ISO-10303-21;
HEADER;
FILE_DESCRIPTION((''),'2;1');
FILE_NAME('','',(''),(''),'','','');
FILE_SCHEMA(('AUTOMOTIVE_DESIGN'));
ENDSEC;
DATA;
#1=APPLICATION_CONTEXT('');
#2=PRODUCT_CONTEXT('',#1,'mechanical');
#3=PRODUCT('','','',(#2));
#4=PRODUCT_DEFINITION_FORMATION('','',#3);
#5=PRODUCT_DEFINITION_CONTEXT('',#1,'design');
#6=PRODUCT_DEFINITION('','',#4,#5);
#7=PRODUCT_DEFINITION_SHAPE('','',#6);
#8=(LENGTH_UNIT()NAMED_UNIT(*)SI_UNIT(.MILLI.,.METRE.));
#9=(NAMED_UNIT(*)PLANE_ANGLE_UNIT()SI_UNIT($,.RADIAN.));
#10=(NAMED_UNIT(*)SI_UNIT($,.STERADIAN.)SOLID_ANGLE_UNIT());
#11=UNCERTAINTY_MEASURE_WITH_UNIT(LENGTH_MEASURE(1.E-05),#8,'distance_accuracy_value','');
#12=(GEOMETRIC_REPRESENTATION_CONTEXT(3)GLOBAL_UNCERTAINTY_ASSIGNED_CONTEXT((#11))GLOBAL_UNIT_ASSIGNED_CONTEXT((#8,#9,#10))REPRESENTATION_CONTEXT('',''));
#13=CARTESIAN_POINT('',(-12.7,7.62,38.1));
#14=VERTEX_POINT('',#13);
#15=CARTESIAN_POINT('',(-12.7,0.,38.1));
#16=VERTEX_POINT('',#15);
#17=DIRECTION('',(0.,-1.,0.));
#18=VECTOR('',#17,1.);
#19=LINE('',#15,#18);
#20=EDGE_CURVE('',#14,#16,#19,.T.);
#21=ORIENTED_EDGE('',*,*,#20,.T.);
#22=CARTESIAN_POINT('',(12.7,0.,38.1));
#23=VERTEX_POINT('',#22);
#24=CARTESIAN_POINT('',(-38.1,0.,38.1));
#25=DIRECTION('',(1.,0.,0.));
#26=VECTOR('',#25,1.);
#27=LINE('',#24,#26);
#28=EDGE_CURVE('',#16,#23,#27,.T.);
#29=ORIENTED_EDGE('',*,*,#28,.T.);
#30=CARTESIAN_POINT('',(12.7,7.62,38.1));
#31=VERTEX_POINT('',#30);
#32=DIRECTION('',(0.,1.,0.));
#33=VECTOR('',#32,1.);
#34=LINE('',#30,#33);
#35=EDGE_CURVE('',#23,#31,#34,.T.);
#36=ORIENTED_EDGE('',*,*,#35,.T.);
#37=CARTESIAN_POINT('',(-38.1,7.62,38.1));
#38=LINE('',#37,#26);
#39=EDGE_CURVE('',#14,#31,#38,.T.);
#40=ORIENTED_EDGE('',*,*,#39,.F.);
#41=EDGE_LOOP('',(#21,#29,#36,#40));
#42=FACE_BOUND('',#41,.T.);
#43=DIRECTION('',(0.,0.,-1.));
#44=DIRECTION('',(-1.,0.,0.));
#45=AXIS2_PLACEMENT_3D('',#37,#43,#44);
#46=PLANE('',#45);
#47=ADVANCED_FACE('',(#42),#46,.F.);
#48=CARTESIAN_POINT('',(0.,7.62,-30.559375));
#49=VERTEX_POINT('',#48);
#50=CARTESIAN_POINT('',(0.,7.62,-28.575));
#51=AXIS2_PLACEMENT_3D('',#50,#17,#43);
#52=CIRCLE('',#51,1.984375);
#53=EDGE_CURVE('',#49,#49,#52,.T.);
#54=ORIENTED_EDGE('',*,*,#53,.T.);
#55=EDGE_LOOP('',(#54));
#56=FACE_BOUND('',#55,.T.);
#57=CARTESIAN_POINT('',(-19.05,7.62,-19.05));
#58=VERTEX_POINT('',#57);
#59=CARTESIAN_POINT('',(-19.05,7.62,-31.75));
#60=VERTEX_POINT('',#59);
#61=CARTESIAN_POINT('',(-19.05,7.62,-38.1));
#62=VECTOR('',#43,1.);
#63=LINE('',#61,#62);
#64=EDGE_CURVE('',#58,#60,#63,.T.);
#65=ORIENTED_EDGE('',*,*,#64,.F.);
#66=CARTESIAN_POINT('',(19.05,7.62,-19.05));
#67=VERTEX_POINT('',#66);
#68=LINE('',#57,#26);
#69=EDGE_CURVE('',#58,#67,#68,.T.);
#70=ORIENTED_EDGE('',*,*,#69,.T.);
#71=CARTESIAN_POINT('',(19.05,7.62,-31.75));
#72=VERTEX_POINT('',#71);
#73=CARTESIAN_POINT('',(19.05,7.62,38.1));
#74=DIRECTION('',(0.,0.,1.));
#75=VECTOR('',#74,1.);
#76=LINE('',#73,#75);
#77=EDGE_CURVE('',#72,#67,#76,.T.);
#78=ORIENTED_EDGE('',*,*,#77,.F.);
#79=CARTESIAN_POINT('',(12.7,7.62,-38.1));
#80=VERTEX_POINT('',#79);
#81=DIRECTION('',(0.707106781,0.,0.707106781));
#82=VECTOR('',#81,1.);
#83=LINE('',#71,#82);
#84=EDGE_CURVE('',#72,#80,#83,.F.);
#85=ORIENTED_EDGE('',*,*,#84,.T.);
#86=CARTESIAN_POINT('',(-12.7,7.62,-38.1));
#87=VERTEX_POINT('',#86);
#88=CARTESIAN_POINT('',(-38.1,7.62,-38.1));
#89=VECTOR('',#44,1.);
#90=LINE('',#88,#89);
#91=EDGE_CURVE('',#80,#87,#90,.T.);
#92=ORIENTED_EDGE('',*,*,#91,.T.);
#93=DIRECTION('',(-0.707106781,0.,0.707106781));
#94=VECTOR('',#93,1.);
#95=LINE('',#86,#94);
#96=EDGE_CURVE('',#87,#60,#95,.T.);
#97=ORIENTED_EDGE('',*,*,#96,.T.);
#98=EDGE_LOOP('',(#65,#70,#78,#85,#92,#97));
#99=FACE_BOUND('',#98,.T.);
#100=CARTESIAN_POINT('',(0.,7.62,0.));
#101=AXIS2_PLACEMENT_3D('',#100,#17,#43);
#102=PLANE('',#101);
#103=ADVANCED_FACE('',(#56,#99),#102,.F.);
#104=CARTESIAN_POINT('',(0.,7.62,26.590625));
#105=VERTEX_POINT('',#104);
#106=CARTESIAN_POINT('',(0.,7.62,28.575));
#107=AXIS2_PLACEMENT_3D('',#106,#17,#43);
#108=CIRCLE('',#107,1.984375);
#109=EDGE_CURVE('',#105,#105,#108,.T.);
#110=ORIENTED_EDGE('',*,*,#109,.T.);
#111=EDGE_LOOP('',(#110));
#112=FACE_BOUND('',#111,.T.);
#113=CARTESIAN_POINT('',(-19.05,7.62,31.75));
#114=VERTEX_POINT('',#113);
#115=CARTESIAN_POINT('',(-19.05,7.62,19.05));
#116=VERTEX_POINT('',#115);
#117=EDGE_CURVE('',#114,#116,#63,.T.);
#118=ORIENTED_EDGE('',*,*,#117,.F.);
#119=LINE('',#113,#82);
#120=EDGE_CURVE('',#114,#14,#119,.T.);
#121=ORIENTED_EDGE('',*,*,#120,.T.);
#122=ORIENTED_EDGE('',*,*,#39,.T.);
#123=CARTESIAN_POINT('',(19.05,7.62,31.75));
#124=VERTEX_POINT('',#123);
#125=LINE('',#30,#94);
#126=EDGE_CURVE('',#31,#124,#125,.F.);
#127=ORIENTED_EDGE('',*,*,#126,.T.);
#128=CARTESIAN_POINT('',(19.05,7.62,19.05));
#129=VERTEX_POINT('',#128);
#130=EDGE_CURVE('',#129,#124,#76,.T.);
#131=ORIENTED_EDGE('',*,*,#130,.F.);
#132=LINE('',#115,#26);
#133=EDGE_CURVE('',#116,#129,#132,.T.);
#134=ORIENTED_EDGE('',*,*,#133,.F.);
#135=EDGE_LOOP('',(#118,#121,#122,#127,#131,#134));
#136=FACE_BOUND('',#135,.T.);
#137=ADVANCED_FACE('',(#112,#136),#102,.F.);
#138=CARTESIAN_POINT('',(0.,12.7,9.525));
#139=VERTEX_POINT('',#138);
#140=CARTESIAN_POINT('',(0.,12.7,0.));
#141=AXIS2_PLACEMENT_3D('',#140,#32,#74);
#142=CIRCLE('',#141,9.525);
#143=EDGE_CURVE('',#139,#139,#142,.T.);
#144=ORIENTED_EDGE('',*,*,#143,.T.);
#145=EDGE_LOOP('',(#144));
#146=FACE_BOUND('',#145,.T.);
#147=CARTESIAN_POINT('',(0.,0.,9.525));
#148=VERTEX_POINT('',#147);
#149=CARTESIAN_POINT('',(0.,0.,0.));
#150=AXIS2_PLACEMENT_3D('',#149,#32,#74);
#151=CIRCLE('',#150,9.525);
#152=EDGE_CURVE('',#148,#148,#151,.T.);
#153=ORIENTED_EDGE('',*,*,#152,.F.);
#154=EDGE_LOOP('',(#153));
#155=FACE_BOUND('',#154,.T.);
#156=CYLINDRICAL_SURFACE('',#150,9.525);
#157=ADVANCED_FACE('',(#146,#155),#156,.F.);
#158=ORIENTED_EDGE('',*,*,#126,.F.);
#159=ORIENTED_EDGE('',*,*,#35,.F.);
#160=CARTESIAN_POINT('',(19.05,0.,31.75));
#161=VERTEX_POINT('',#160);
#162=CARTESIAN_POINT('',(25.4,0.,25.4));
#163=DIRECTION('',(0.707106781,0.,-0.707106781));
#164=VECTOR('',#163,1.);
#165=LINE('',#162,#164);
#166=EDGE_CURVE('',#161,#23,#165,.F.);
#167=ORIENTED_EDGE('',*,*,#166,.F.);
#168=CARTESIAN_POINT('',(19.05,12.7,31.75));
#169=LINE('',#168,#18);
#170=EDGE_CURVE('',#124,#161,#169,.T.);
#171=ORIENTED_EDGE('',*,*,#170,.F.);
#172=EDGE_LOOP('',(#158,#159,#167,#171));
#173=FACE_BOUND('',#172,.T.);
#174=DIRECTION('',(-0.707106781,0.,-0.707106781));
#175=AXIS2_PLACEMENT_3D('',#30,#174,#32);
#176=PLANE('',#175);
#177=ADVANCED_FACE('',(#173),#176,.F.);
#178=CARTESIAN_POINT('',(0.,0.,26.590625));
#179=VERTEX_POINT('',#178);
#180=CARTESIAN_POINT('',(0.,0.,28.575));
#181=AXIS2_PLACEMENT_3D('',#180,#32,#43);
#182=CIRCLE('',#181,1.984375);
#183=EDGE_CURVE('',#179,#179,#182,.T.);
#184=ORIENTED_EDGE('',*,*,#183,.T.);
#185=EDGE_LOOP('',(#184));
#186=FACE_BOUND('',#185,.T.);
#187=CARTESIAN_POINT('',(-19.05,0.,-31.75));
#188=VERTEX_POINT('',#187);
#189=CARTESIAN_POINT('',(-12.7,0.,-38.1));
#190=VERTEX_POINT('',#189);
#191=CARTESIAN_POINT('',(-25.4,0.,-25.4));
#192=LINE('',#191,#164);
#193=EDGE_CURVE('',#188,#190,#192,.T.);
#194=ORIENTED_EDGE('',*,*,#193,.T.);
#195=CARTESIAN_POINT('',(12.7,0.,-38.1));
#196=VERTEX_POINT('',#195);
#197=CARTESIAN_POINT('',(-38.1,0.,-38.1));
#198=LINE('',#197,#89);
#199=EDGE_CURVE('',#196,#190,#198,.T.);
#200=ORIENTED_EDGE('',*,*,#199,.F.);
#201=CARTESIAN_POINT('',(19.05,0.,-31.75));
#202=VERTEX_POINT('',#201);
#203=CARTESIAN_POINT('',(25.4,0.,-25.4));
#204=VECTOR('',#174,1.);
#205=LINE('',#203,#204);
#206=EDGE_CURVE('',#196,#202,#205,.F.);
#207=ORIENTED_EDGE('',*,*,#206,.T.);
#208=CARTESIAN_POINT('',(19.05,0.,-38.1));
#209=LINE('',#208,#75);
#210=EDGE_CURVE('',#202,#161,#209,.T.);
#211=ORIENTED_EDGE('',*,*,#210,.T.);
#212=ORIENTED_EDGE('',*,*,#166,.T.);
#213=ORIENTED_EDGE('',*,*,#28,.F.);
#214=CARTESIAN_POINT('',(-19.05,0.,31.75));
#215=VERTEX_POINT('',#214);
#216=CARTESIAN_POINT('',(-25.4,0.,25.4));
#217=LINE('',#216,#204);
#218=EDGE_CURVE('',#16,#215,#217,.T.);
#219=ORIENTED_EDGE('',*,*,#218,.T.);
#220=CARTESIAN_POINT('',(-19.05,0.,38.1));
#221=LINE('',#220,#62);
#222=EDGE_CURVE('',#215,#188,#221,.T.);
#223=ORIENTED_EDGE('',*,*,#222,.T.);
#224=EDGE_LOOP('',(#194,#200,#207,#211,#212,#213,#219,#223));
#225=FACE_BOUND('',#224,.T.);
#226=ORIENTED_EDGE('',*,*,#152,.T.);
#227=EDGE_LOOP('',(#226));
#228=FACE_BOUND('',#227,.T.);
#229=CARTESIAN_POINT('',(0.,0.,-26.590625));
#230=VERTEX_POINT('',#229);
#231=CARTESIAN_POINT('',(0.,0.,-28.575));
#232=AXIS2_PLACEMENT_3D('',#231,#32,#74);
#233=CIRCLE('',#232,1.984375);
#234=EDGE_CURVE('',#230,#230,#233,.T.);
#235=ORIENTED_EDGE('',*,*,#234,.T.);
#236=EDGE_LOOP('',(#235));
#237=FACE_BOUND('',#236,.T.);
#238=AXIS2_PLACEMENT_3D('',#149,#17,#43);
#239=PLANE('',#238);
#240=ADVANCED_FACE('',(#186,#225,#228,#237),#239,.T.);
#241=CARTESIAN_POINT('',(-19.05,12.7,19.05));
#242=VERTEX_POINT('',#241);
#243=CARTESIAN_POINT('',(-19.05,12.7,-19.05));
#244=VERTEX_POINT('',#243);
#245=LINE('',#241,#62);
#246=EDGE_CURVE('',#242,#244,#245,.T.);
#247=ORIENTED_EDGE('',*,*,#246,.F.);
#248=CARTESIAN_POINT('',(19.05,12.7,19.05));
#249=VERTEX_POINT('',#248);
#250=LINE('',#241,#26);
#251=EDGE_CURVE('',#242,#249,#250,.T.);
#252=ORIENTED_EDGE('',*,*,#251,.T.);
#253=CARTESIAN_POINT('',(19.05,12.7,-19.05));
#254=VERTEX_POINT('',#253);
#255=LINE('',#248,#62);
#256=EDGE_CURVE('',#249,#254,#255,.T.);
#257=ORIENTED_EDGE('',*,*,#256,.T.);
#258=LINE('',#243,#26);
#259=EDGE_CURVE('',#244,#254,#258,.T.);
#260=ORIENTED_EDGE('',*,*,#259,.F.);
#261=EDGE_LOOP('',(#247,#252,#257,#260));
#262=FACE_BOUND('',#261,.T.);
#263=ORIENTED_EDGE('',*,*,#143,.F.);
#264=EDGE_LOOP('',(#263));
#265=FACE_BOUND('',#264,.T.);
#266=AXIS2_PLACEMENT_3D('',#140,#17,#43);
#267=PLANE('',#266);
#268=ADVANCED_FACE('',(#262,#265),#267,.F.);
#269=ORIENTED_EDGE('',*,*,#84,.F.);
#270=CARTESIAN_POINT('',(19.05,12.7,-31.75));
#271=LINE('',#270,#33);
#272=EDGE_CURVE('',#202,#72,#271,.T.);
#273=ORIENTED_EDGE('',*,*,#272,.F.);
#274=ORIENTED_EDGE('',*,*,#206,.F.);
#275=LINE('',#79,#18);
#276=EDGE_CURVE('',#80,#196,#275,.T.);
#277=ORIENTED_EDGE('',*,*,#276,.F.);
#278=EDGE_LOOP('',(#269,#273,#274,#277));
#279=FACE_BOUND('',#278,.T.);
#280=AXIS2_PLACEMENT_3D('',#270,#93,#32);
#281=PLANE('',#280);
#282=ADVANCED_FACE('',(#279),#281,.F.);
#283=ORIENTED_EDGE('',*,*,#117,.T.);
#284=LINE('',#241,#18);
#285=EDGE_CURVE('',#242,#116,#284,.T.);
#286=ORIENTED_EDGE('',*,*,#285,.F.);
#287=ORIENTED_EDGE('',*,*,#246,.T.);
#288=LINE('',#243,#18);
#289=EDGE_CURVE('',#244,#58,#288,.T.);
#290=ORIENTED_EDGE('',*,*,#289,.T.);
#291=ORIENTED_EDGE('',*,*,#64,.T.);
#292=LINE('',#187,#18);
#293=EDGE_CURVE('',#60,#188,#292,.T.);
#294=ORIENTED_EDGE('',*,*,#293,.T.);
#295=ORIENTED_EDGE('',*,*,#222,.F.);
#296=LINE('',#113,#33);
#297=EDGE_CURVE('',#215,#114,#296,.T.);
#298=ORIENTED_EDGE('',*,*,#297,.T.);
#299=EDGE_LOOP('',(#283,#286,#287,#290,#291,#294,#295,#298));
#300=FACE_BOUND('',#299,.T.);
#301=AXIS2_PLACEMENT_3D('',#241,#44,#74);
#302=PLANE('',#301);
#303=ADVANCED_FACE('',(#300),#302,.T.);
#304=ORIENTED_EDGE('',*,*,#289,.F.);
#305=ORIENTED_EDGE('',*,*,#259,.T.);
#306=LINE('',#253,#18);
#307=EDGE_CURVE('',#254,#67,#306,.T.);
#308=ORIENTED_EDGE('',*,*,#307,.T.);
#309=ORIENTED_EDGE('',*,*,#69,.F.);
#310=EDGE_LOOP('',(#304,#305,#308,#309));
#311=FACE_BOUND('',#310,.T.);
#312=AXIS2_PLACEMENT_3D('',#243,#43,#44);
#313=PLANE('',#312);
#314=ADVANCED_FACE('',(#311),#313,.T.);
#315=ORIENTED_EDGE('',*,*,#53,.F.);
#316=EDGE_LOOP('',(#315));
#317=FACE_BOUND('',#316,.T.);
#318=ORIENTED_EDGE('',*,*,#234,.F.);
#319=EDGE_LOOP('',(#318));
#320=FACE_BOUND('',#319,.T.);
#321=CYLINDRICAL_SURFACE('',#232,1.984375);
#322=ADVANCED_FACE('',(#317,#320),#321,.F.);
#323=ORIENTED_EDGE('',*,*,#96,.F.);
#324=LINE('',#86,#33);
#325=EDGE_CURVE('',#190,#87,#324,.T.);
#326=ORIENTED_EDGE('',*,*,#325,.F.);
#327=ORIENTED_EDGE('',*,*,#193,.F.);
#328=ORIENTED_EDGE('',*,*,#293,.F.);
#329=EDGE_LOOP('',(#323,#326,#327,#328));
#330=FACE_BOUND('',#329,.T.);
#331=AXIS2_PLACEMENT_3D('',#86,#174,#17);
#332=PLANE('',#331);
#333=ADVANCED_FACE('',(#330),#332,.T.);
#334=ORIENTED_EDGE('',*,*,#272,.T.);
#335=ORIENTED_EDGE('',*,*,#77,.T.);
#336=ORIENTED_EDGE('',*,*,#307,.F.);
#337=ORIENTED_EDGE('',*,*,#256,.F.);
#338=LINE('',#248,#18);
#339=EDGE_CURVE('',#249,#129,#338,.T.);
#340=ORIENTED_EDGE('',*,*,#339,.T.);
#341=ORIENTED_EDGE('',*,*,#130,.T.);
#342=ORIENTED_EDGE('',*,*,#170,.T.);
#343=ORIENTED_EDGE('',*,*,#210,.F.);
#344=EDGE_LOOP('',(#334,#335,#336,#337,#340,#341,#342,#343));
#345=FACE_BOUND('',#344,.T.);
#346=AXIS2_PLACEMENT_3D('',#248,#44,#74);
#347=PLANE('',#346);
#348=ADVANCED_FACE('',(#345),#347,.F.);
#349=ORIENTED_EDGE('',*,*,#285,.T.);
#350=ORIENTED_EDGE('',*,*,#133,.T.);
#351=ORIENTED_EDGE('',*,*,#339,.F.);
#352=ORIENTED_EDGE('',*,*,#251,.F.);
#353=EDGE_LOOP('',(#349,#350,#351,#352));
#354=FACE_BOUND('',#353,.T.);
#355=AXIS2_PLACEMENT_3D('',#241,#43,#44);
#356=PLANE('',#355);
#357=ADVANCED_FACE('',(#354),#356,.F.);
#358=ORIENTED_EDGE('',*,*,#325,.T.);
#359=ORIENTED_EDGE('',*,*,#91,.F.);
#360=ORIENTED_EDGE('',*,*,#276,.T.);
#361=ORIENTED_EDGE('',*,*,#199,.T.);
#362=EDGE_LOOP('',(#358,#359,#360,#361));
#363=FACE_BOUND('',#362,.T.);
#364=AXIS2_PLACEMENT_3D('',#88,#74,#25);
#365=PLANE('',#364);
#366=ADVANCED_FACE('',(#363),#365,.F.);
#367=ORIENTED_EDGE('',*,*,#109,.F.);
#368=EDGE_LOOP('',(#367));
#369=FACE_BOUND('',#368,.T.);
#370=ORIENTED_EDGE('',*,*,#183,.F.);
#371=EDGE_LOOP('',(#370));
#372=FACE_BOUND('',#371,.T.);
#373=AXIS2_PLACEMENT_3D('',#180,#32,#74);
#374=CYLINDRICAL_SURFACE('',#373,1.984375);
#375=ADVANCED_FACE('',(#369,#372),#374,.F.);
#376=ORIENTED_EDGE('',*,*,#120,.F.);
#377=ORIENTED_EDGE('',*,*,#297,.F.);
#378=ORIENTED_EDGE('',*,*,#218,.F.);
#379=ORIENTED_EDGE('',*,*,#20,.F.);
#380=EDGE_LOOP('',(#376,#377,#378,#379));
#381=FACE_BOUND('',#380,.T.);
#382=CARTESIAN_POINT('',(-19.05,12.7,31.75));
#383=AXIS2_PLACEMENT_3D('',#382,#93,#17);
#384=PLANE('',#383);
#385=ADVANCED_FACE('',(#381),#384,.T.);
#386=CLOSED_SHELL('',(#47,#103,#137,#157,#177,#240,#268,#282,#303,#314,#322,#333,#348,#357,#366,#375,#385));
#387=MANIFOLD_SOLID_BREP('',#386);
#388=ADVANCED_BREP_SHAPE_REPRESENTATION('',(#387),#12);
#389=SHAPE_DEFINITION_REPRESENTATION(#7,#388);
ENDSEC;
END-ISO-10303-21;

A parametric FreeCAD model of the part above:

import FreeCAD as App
import Part
import Sketcher
from FreeCAD import Vector
Q = App.Units.Quantity


def edges_at(feature, points):
    """Names of the edges that pass closest to the given points."""
    edges = feature.Shape.Edges
    near = lambda p: min(range(len(edges)), key=lambda i: edges[i].distToShape(Part.Vertex(*p))[0])
    return sorted({f"Edge{near(p) + 1}" for p in points})


def add_polygon(sketch, points):
    """Adds a closed chain of lines whose ends are joined by coincident constraints."""
    first, n = sketch.GeometryCount, len(points)
    for a, b in zip(points, points[1:] + points[:1]):
        sketch.addGeometry(Part.LineSegment(App.Vector(*a, 0), App.Vector(*b, 0)), False)
    for i in range(n):
        sketch.addConstraint(Sketcher.Constraint("Coincident", first + i, 2, first + (i + 1) % n, 1))

doc = App.newDocument("Part")
body = doc.addObject("PartDesign::Body", "Body")

# Sketch on XZ plane
sketch1 = doc.addObject("Sketcher::SketchObject", "Sketch")
body.addObject(sketch1)
sketch1.AttachmentSupport = (doc.XZ_Plane, [""])
sketch1.MapMode = "FlatFace"
add_polygon(sketch1, [(-38, -38), (-38, 38), (38, 38), (38, -38)])  # lines 0-3
sketch1.addConstraint(Sketcher.Constraint("Vertical", 0))
sketch1.addConstraint(Sketcher.Constraint("Horizontal", 1))
sketch1.addConstraint(Sketcher.Constraint("Vertical", 2))
sketch1.addConstraint(Sketcher.Constraint("Horizontal", 3))
sketch1.addConstraint(Sketcher.Constraint("Symmetric", 0, 2, 2, 2, -1, 1))
sketch1.addConstraint(Sketcher.Constraint("Equal", 3, 0))
sketch1.addConstraint(Sketcher.Constraint("DistanceX", 1, 1, 1, 2, Q("3 in")))
pad1 = doc.addObject("PartDesign::Pad", "Pad")
body.addObject(pad1)
pad1.Profile = sketch1
pad1.Length = Q("0.3 in")
pad1.Reversed = True

# Sketch on XZ plane
sketch2 = doc.addObject("Sketcher::SketchObject", "Sketch001")
body.addObject(sketch2)
sketch2.AttachmentSupport = (doc.XZ_Plane, [""])
sketch2.MapMode = "FlatFace"
sketch2.AttachmentOffset = App.Placement(Vector(0, 0, -0.3 * 25.4), App.Rotation())
add_polygon(sketch2, [(-19, -19), (-19, 19), (19, 19), (19, -19)])  # lines 0-3
sketch2.addConstraint(Sketcher.Constraint("Vertical", 0))
sketch2.addConstraint(Sketcher.Constraint("Horizontal", 1))
sketch2.addConstraint(Sketcher.Constraint("Vertical", 2))
sketch2.addConstraint(Sketcher.Constraint("Horizontal", 3))
sketch2.addConstraint(Sketcher.Constraint("Symmetric", 0, 2, 2, 2, -1, 1))
sketch2.addConstraint(Sketcher.Constraint("Equal", 3, 0))
sketch2.addConstraint(Sketcher.Constraint("DistanceX", 1, 1, 1, 2, Q("1.5 in")))
pad2 = doc.addObject("PartDesign::Pad", "Pad001")
body.addObject(pad2)
pad2.Profile = sketch2
pad2.Length = Q("0.2 in")
pad2.Reversed = True

# Sketch on XZ plane
sketch3 = doc.addObject("Sketcher::SketchObject", "Sketch002")
body.addObject(sketch3)
sketch3.AttachmentSupport = (doc.XZ_Plane, [""])
sketch3.MapMode = "FlatFace"
sketch3.AttachmentOffset = App.Placement(Vector(0, 0, -0.5 * 25.4), App.Rotation())
sketch3.addGeometry(Part.Circle(Vector(0, 0, 0), Vector(0, 0, 1), 10), False)
sketch3.addConstraint(Sketcher.Constraint("Coincident", 0, 3, -1, 1))
sketch3.addConstraint(Sketcher.Constraint("Diameter", 0, Q("0.75 in")))
pocket1 = doc.addObject("PartDesign::Pocket", "Pocket")
body.addObject(pocket1)
pocket1.Profile = sketch3
pocket1.Type = "ThroughAll"
pocket1.Reversed = True

# Sketch on XZ plane
sketch4 = doc.addObject("Sketcher::SketchObject", "Sketch003")
body.addObject(sketch4)
sketch4.AttachmentSupport = (doc.XZ_Plane, [""])
sketch4.MapMode = "FlatFace"
sketch4.AttachmentOffset = App.Placement(Vector(0, 0, -0.5 * 25.4), App.Rotation())
sketch4.addGeometry(Part.Circle(Vector(0, -28.6, 0), Vector(0, 0, 1), 2), False)
sketch4.addGeometry(Part.Circle(Vector(0, 28.6, 0), Vector(0, 0, 1), 2), False)
sketch4.addConstraint(Sketcher.Constraint("Equal", 0, 1))
sketch4.addConstraint(Sketcher.Constraint("Symmetric", 0, 3, 1, 3, -1, 1))
sketch4.addConstraint(Sketcher.Constraint("PointOnObject", 0, 3, -2))
sketch4.addConstraint(Sketcher.Constraint("Diameter", 0, Q("0.15625 in")))
sketch4.addConstraint(Sketcher.Constraint("DistanceY", 0, 3, 1, 3, Q("2.25 in")))
pocket2 = doc.addObject("PartDesign::Pocket", "Pocket001")
body.addObject(pocket2)
pocket2.Profile = sketch4
pocket2.Type = "ThroughAll"
pocket2.Reversed = True

# Sketch on XZ plane
sketch5 = doc.addObject("Sketcher::SketchObject", "Sketch004")
body.addObject(sketch5)
sketch5.AttachmentSupport = (doc.XZ_Plane, [""])
sketch5.MapMode = "FlatFace"
sketch5.AttachmentOffset = App.Placement(Vector(0, 0, -0.3 * 25.4), App.Rotation())
add_polygon(sketch5, [(-38, 38), (-19, 38), (-19, -38), (-38, -38)])  # lines 0-3
add_polygon(sketch5, [(19, -38), (19, 38), (38, 38), (38, -38)])  # lines 4-7
sketch5.addConstraint(Sketcher.Constraint("Horizontal", 0))
sketch5.addConstraint(Sketcher.Constraint("Vertical", 1))
sketch5.addConstraint(Sketcher.Constraint("Horizontal", 2))
sketch5.addConstraint(Sketcher.Constraint("Vertical", 3))
sketch5.addConstraint(Sketcher.Constraint("Vertical", 4))
sketch5.addConstraint(Sketcher.Constraint("Horizontal", 5))
sketch5.addConstraint(Sketcher.Constraint("Vertical", 6))
sketch5.addConstraint(Sketcher.Constraint("Horizontal", 7))
sketch5.addConstraint(Sketcher.Constraint("Symmetric", 1, 2, 4, 2, -1, 1))
sketch5.addConstraint(Sketcher.Constraint("Symmetric", 3, 2, 6, 2, -1, 1))
sketch5.addConstraint(Sketcher.Constraint("Horizontal", 3, 2, 4, 2))
sketch5.addConstraint(Sketcher.Constraint("DistanceY", 1, 2, 1, 1, Q("3 in")))
sketch5.addConstraint(Sketcher.Constraint("DistanceX", 3, 2, 5, 2, Q("3 in")))
sketch5.addConstraint(Sketcher.Constraint("DistanceX", 0, 1, 0, 2, Q("0.75 in")))
pocket3 = doc.addObject("PartDesign::Pocket", "Pocket002")
body.addObject(pocket3)
pocket3.Profile = sketch5
pocket3.Type = "ThroughAll"
pocket3.Reversed = True
doc.recompute()

chamfer = doc.addObject("PartDesign::Chamfer", "Chamfer")
body.addObject(chamfer)
chamfer.Base = (pocket3, edges_at(pocket3, [
    (-19.05, 3.81, -38.1),
    (-19.05, 3.81, 38.1),
    (19.05, 3.81, -38.1),
    (19.05, 3.81, 38.1),
]))
chamfer.Size = Q("0.25 in")

doc.recompute()
